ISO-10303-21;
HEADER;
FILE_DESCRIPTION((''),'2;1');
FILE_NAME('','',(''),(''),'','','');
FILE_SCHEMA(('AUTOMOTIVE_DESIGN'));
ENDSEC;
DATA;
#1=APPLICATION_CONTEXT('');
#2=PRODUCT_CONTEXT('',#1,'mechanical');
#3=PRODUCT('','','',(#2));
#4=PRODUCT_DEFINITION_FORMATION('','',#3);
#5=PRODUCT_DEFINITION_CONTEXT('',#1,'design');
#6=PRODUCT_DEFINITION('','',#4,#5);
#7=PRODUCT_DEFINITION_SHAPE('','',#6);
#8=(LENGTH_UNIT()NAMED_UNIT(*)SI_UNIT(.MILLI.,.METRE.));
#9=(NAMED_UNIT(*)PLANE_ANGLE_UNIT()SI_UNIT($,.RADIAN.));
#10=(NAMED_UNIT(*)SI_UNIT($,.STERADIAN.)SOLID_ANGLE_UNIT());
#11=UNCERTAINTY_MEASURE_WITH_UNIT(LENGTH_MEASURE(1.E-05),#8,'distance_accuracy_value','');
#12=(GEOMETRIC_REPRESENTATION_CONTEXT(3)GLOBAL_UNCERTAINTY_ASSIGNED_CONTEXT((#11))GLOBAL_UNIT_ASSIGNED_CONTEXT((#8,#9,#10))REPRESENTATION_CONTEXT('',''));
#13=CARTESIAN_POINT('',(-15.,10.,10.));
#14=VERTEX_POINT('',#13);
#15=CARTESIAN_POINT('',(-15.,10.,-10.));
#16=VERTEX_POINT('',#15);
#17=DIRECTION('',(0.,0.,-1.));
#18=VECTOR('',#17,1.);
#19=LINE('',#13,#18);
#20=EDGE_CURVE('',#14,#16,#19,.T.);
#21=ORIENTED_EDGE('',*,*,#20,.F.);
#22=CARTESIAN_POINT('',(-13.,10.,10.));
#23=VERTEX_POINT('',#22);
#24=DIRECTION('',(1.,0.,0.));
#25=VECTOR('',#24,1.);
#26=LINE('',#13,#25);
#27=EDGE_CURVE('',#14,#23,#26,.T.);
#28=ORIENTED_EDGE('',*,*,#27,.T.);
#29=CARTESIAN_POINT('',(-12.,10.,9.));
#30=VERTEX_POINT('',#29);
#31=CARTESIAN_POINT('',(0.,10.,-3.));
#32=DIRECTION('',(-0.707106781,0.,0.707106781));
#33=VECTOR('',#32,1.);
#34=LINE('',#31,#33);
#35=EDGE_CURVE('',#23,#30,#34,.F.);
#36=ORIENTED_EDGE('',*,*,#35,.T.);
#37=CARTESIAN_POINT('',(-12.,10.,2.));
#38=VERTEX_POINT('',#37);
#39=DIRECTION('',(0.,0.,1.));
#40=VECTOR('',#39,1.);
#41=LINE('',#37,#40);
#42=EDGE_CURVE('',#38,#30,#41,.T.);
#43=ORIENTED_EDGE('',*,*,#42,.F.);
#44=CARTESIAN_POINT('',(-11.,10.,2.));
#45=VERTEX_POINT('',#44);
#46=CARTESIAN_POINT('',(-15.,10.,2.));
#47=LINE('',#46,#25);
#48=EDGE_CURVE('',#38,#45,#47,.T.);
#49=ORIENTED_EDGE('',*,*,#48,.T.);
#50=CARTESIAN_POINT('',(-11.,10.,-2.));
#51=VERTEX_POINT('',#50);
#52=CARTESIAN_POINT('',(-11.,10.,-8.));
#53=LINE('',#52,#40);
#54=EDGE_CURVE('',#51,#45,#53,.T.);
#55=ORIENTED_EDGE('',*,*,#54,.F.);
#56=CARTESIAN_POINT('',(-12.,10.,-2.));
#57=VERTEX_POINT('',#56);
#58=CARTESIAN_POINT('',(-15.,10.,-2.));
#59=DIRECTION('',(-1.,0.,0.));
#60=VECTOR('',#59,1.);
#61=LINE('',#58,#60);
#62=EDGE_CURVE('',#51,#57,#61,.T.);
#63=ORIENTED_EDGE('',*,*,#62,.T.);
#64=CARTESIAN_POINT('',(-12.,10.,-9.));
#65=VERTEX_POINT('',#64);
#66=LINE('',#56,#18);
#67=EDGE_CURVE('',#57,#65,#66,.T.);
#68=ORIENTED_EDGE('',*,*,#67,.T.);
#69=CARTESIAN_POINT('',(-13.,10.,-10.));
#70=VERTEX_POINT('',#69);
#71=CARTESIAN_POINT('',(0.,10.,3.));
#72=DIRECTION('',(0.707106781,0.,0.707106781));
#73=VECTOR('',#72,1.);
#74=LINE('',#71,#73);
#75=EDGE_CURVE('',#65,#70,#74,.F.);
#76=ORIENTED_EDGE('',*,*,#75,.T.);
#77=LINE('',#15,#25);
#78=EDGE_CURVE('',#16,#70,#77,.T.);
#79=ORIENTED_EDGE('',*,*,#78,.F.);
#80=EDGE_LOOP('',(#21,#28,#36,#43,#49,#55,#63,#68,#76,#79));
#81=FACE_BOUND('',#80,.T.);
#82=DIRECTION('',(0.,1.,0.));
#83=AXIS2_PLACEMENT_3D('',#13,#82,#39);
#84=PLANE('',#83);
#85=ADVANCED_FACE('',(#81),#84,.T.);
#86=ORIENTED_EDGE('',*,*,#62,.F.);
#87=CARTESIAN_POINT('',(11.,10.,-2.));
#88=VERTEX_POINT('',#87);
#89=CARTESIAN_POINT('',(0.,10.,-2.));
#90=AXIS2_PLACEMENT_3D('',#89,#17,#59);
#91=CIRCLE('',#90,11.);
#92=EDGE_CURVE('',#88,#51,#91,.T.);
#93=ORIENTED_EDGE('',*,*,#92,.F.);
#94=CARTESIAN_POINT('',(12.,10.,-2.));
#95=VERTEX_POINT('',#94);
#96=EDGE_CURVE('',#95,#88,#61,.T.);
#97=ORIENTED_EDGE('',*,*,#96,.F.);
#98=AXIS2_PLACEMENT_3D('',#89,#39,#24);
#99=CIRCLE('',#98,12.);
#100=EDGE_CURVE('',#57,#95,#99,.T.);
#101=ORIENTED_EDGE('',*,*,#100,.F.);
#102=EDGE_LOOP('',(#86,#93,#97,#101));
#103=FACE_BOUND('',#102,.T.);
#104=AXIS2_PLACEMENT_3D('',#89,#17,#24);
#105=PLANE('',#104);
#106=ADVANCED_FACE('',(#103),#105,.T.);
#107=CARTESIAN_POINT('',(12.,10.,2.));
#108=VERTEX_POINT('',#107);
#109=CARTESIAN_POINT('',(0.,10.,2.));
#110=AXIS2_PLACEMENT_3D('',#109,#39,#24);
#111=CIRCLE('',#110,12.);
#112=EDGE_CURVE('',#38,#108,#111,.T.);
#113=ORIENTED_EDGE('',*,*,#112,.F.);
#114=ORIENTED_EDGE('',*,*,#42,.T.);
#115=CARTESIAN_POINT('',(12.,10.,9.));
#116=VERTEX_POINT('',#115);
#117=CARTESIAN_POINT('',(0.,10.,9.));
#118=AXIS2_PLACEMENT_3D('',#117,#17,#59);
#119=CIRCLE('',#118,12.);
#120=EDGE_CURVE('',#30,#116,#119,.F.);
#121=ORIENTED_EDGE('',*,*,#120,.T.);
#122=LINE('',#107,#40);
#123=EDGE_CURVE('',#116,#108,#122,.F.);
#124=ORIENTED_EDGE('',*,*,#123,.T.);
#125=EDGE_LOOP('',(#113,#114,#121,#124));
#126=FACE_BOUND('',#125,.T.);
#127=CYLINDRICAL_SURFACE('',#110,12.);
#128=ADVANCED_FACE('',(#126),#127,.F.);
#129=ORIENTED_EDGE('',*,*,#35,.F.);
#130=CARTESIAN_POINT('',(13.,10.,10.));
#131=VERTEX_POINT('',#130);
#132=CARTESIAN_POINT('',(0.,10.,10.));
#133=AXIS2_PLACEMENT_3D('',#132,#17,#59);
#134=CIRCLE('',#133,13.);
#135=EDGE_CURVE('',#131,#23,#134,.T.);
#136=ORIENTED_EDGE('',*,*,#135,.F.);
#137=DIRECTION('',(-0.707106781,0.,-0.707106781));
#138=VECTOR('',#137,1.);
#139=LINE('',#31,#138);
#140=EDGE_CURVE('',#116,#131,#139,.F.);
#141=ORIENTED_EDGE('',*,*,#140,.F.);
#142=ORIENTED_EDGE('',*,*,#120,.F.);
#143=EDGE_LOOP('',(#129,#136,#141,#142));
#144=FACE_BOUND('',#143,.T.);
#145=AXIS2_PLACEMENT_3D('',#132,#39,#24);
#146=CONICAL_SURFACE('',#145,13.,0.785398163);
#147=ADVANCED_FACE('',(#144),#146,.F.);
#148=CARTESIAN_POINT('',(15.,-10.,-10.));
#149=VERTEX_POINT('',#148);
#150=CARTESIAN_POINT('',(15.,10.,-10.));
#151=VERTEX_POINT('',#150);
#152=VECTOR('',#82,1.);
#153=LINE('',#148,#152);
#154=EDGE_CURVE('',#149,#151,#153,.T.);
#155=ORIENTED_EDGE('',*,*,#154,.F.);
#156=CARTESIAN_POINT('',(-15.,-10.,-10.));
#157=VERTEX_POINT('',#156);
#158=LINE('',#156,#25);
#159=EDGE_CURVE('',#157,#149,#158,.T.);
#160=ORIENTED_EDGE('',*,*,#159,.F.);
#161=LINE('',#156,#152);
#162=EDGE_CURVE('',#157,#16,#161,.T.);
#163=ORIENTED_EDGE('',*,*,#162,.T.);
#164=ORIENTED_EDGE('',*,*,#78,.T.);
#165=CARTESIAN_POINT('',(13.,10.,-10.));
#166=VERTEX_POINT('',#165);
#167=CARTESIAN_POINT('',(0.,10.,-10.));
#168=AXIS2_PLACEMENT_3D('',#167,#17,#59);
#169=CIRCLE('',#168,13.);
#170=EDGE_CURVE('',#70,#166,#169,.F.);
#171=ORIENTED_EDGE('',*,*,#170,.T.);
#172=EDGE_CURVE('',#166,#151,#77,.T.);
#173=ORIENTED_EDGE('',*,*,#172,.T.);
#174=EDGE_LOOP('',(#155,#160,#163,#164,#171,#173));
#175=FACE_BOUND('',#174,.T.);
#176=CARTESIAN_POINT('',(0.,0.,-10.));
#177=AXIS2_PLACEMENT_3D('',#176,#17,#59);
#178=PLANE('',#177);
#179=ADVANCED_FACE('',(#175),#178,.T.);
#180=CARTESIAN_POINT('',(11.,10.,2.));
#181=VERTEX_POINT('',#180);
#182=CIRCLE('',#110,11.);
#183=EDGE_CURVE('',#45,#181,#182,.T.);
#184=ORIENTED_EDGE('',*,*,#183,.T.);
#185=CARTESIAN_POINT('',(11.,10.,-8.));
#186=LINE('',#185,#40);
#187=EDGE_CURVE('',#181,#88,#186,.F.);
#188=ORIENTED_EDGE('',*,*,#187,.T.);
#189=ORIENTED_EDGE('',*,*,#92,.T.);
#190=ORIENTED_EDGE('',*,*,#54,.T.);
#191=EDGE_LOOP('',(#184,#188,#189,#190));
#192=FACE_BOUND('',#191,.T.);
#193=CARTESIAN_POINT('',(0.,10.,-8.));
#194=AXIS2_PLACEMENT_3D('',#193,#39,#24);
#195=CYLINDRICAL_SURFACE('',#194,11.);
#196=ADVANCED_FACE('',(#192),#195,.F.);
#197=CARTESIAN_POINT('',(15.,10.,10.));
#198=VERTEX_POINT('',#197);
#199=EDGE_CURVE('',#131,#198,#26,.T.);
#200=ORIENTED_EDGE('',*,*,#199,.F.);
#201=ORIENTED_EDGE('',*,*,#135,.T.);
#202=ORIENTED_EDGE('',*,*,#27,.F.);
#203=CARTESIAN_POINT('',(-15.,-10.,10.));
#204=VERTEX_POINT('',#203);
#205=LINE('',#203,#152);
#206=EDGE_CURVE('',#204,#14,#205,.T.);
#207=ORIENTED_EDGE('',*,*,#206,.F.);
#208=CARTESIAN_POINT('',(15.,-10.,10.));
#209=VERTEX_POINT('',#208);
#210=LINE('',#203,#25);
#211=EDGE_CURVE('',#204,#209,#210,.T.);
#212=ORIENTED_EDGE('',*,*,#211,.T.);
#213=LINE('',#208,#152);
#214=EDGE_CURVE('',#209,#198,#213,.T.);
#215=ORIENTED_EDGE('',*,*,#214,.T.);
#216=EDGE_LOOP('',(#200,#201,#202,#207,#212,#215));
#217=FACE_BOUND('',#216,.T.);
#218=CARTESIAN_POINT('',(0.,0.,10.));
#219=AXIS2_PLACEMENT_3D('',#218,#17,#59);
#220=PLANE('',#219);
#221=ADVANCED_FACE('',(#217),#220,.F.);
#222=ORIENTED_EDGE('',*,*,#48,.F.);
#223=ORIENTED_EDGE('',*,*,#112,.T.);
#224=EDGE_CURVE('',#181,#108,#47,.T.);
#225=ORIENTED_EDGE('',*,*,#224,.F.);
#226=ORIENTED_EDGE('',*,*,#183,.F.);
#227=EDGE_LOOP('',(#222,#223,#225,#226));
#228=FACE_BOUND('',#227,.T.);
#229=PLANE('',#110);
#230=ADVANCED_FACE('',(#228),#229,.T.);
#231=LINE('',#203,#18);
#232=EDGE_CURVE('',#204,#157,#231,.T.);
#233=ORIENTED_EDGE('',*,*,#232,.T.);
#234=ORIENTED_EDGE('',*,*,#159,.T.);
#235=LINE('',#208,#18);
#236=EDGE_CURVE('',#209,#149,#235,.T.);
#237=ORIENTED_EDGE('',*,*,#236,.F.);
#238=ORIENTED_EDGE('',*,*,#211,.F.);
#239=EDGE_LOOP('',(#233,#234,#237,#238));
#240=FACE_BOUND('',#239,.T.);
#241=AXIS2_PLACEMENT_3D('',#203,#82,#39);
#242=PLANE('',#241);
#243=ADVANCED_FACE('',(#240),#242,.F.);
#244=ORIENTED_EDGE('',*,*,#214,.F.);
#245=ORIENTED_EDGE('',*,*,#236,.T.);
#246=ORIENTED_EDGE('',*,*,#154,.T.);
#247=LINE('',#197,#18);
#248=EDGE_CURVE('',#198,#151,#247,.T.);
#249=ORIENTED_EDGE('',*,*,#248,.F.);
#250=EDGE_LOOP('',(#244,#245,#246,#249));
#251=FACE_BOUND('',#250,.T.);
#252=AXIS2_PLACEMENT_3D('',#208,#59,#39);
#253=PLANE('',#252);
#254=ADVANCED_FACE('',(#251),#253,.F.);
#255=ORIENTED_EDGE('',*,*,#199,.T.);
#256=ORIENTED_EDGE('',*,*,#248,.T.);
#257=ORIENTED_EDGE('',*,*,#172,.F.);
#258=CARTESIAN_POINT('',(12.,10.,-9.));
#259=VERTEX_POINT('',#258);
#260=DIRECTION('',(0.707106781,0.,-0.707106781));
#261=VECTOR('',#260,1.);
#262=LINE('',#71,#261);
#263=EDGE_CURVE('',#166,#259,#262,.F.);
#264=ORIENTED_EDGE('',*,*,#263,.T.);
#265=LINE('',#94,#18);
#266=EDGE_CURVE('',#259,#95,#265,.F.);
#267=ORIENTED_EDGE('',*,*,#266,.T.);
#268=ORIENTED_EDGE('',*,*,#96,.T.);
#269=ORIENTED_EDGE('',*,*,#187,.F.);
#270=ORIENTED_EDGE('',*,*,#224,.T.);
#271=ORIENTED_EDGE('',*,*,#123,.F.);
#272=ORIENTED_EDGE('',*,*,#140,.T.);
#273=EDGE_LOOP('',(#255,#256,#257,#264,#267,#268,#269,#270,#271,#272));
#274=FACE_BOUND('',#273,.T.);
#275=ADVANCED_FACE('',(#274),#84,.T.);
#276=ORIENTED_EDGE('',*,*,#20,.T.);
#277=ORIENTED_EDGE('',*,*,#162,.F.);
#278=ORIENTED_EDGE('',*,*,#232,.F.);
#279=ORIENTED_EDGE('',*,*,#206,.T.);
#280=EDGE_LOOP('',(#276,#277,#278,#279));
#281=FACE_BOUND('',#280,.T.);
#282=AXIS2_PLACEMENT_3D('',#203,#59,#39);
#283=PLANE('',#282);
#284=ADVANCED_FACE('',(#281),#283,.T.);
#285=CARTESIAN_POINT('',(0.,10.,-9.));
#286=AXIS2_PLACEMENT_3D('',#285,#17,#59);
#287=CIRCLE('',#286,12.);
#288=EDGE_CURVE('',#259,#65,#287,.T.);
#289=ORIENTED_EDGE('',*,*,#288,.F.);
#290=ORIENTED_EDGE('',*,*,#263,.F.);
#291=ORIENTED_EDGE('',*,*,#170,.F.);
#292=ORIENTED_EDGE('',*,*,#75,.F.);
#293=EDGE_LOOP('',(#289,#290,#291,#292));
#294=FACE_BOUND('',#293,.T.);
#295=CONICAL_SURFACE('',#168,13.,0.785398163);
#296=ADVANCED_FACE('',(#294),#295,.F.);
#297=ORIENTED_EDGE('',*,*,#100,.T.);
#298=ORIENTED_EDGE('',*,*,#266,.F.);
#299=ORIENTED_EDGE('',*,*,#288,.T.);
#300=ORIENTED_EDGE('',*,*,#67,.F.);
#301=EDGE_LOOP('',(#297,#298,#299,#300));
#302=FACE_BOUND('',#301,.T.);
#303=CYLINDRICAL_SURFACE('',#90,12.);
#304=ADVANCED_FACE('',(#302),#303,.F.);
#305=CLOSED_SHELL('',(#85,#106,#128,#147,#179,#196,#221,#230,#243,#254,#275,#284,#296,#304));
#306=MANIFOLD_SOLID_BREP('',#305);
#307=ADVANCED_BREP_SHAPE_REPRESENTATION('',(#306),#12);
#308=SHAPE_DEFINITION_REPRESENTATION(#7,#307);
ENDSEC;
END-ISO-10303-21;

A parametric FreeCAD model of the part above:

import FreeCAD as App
import Part
import Sketcher
Q = App.Units.Quantity


def edges_at(feature, points):
    """Names of the edges that pass closest to the given points."""
    edges = feature.Shape.Edges
    near = lambda p: min(range(len(edges)), key=lambda i: edges[i].distToShape(Part.Vertex(*p))[0])
    return sorted({f"Edge{near(p) + 1}" for p in points})


def add_polygon(sketch, points):
    """Adds a closed chain of lines whose ends are joined by coincident constraints."""
    first, n = sketch.GeometryCount, len(points)
    for a, b in zip(points, points[1:] + points[:1]):
        sketch.addGeometry(Part.LineSegment(App.Vector(*a, 0), App.Vector(*b, 0)), False)
    for i in range(n):
        sketch.addConstraint(Sketcher.Constraint("Coincident", first + i, 2, first + (i + 1) % n, 1))

doc = App.newDocument("Part")
body = doc.addObject("PartDesign::Body", "Body")

# Sketch on XY plane
sketch1 = body.newObject("Sketcher::SketchObject", "Sketch")
sketch1.AttachmentSupport = (doc.getObject("XY_Plane"), [""])
sketch1.MapMode = "FlatFace"
add_polygon(sketch1, [(-15, 10), (-15, -10), (15, -10), (15, 10)])  # lines 0-3
sketch1.addConstraint(Sketcher.Constraint("Vertical", 0))
sketch1.addConstraint(Sketcher.Constraint("Horizontal", 1))
sketch1.addConstraint(Sketcher.Constraint("Vertical", 2))
sketch1.addConstraint(Sketcher.Constraint("Horizontal", 3))
sketch1.addConstraint(Sketcher.Constraint("Symmetric", 0, 2, 2, 2, -1, 1))
sketch1.addConstraint(Sketcher.Constraint("DistanceX", 1, 1, 1, 2, Q("30 mm")))
sketch1.addConstraint(Sketcher.Constraint("DistanceY", 0, 2, 0, 1, Q("20 mm")))
pad1 = body.newObject("PartDesign::Pad", "Pad")
pad1.Profile = sketch1
pad1.Length = 20
pad1.Midplane = True

# Sketch on XY plane
sketch2 = body.newObject("Sketcher::SketchObject", "Sketch001")
sketch2.AttachmentSupport = (doc.getObject("XY_Plane"), [""])
sketch2.MapMode = "FlatFace"
sketch2.AttachmentOffset = App.Placement(App.Vector(0, 0, 10), App.Rotation())
sketch2.addGeometry(Part.Circle(App.Vector(0, 10, 0), App.Vector(0, 0, 1), 12), False)
sketch2.addConstraint(Sketcher.Constraint("PointOnObject", 0, 3, -2))
sketch2.addConstraint(Sketcher.Constraint("Diameter", 0, Q("24 mm")))
sketch2.addConstraint(Sketcher.Constraint("DistanceY", -1, 1, 0, 3, Q("10 mm")))
pocket1 = body.newObject("PartDesign::Pocket", "Pocket")
pocket1.Profile = sketch2
pocket1.Length = 8
doc.recompute()

mirrored = body.newObject("PartDesign::Mirrored", "Mirrored")
mirrored.Originals = [pocket1]
mirrored.MirrorPlane = (doc.getObject("XY_Plane"), [""])
body.Tip = mirrored

# Sketch on XY plane
sketch3 = body.newObject("Sketcher::SketchObject", "Sketch002")
sketch3.AttachmentSupport = (doc.getObject("XY_Plane"), [""])
sketch3.MapMode = "FlatFace"
sketch3.AttachmentOffset = App.Placement(App.Vector(0, 0, 2), App.Rotation())
sketch3.addGeometry(Part.Circle(App.Vector(0, 10, 0), App.Vector(0, 0, 1), 11), False)
sketch3.addConstraint(Sketcher.Constraint("PointOnObject", 0, 3, -2))
sketch3.addConstraint(Sketcher.Constraint("Diameter", 0, Q("22 mm")))
sketch3.addConstraint(Sketcher.Constraint("DistanceY", -1, 1, 0, 3, Q("10 mm")))
pocket2 = body.newObject("PartDesign::Pocket", "Pocket001")
pocket2.Profile = sketch3
pocket2.Length = 10
doc.recompute()

chamfer = body.newObject("PartDesign::Chamfer", "Chamfer")
chamfer.Base = (pocket2, edges_at(pocket2, [(0, -2, 10), (0, -2, -10)]))
chamfer.Size = 1

doc.recompute()
